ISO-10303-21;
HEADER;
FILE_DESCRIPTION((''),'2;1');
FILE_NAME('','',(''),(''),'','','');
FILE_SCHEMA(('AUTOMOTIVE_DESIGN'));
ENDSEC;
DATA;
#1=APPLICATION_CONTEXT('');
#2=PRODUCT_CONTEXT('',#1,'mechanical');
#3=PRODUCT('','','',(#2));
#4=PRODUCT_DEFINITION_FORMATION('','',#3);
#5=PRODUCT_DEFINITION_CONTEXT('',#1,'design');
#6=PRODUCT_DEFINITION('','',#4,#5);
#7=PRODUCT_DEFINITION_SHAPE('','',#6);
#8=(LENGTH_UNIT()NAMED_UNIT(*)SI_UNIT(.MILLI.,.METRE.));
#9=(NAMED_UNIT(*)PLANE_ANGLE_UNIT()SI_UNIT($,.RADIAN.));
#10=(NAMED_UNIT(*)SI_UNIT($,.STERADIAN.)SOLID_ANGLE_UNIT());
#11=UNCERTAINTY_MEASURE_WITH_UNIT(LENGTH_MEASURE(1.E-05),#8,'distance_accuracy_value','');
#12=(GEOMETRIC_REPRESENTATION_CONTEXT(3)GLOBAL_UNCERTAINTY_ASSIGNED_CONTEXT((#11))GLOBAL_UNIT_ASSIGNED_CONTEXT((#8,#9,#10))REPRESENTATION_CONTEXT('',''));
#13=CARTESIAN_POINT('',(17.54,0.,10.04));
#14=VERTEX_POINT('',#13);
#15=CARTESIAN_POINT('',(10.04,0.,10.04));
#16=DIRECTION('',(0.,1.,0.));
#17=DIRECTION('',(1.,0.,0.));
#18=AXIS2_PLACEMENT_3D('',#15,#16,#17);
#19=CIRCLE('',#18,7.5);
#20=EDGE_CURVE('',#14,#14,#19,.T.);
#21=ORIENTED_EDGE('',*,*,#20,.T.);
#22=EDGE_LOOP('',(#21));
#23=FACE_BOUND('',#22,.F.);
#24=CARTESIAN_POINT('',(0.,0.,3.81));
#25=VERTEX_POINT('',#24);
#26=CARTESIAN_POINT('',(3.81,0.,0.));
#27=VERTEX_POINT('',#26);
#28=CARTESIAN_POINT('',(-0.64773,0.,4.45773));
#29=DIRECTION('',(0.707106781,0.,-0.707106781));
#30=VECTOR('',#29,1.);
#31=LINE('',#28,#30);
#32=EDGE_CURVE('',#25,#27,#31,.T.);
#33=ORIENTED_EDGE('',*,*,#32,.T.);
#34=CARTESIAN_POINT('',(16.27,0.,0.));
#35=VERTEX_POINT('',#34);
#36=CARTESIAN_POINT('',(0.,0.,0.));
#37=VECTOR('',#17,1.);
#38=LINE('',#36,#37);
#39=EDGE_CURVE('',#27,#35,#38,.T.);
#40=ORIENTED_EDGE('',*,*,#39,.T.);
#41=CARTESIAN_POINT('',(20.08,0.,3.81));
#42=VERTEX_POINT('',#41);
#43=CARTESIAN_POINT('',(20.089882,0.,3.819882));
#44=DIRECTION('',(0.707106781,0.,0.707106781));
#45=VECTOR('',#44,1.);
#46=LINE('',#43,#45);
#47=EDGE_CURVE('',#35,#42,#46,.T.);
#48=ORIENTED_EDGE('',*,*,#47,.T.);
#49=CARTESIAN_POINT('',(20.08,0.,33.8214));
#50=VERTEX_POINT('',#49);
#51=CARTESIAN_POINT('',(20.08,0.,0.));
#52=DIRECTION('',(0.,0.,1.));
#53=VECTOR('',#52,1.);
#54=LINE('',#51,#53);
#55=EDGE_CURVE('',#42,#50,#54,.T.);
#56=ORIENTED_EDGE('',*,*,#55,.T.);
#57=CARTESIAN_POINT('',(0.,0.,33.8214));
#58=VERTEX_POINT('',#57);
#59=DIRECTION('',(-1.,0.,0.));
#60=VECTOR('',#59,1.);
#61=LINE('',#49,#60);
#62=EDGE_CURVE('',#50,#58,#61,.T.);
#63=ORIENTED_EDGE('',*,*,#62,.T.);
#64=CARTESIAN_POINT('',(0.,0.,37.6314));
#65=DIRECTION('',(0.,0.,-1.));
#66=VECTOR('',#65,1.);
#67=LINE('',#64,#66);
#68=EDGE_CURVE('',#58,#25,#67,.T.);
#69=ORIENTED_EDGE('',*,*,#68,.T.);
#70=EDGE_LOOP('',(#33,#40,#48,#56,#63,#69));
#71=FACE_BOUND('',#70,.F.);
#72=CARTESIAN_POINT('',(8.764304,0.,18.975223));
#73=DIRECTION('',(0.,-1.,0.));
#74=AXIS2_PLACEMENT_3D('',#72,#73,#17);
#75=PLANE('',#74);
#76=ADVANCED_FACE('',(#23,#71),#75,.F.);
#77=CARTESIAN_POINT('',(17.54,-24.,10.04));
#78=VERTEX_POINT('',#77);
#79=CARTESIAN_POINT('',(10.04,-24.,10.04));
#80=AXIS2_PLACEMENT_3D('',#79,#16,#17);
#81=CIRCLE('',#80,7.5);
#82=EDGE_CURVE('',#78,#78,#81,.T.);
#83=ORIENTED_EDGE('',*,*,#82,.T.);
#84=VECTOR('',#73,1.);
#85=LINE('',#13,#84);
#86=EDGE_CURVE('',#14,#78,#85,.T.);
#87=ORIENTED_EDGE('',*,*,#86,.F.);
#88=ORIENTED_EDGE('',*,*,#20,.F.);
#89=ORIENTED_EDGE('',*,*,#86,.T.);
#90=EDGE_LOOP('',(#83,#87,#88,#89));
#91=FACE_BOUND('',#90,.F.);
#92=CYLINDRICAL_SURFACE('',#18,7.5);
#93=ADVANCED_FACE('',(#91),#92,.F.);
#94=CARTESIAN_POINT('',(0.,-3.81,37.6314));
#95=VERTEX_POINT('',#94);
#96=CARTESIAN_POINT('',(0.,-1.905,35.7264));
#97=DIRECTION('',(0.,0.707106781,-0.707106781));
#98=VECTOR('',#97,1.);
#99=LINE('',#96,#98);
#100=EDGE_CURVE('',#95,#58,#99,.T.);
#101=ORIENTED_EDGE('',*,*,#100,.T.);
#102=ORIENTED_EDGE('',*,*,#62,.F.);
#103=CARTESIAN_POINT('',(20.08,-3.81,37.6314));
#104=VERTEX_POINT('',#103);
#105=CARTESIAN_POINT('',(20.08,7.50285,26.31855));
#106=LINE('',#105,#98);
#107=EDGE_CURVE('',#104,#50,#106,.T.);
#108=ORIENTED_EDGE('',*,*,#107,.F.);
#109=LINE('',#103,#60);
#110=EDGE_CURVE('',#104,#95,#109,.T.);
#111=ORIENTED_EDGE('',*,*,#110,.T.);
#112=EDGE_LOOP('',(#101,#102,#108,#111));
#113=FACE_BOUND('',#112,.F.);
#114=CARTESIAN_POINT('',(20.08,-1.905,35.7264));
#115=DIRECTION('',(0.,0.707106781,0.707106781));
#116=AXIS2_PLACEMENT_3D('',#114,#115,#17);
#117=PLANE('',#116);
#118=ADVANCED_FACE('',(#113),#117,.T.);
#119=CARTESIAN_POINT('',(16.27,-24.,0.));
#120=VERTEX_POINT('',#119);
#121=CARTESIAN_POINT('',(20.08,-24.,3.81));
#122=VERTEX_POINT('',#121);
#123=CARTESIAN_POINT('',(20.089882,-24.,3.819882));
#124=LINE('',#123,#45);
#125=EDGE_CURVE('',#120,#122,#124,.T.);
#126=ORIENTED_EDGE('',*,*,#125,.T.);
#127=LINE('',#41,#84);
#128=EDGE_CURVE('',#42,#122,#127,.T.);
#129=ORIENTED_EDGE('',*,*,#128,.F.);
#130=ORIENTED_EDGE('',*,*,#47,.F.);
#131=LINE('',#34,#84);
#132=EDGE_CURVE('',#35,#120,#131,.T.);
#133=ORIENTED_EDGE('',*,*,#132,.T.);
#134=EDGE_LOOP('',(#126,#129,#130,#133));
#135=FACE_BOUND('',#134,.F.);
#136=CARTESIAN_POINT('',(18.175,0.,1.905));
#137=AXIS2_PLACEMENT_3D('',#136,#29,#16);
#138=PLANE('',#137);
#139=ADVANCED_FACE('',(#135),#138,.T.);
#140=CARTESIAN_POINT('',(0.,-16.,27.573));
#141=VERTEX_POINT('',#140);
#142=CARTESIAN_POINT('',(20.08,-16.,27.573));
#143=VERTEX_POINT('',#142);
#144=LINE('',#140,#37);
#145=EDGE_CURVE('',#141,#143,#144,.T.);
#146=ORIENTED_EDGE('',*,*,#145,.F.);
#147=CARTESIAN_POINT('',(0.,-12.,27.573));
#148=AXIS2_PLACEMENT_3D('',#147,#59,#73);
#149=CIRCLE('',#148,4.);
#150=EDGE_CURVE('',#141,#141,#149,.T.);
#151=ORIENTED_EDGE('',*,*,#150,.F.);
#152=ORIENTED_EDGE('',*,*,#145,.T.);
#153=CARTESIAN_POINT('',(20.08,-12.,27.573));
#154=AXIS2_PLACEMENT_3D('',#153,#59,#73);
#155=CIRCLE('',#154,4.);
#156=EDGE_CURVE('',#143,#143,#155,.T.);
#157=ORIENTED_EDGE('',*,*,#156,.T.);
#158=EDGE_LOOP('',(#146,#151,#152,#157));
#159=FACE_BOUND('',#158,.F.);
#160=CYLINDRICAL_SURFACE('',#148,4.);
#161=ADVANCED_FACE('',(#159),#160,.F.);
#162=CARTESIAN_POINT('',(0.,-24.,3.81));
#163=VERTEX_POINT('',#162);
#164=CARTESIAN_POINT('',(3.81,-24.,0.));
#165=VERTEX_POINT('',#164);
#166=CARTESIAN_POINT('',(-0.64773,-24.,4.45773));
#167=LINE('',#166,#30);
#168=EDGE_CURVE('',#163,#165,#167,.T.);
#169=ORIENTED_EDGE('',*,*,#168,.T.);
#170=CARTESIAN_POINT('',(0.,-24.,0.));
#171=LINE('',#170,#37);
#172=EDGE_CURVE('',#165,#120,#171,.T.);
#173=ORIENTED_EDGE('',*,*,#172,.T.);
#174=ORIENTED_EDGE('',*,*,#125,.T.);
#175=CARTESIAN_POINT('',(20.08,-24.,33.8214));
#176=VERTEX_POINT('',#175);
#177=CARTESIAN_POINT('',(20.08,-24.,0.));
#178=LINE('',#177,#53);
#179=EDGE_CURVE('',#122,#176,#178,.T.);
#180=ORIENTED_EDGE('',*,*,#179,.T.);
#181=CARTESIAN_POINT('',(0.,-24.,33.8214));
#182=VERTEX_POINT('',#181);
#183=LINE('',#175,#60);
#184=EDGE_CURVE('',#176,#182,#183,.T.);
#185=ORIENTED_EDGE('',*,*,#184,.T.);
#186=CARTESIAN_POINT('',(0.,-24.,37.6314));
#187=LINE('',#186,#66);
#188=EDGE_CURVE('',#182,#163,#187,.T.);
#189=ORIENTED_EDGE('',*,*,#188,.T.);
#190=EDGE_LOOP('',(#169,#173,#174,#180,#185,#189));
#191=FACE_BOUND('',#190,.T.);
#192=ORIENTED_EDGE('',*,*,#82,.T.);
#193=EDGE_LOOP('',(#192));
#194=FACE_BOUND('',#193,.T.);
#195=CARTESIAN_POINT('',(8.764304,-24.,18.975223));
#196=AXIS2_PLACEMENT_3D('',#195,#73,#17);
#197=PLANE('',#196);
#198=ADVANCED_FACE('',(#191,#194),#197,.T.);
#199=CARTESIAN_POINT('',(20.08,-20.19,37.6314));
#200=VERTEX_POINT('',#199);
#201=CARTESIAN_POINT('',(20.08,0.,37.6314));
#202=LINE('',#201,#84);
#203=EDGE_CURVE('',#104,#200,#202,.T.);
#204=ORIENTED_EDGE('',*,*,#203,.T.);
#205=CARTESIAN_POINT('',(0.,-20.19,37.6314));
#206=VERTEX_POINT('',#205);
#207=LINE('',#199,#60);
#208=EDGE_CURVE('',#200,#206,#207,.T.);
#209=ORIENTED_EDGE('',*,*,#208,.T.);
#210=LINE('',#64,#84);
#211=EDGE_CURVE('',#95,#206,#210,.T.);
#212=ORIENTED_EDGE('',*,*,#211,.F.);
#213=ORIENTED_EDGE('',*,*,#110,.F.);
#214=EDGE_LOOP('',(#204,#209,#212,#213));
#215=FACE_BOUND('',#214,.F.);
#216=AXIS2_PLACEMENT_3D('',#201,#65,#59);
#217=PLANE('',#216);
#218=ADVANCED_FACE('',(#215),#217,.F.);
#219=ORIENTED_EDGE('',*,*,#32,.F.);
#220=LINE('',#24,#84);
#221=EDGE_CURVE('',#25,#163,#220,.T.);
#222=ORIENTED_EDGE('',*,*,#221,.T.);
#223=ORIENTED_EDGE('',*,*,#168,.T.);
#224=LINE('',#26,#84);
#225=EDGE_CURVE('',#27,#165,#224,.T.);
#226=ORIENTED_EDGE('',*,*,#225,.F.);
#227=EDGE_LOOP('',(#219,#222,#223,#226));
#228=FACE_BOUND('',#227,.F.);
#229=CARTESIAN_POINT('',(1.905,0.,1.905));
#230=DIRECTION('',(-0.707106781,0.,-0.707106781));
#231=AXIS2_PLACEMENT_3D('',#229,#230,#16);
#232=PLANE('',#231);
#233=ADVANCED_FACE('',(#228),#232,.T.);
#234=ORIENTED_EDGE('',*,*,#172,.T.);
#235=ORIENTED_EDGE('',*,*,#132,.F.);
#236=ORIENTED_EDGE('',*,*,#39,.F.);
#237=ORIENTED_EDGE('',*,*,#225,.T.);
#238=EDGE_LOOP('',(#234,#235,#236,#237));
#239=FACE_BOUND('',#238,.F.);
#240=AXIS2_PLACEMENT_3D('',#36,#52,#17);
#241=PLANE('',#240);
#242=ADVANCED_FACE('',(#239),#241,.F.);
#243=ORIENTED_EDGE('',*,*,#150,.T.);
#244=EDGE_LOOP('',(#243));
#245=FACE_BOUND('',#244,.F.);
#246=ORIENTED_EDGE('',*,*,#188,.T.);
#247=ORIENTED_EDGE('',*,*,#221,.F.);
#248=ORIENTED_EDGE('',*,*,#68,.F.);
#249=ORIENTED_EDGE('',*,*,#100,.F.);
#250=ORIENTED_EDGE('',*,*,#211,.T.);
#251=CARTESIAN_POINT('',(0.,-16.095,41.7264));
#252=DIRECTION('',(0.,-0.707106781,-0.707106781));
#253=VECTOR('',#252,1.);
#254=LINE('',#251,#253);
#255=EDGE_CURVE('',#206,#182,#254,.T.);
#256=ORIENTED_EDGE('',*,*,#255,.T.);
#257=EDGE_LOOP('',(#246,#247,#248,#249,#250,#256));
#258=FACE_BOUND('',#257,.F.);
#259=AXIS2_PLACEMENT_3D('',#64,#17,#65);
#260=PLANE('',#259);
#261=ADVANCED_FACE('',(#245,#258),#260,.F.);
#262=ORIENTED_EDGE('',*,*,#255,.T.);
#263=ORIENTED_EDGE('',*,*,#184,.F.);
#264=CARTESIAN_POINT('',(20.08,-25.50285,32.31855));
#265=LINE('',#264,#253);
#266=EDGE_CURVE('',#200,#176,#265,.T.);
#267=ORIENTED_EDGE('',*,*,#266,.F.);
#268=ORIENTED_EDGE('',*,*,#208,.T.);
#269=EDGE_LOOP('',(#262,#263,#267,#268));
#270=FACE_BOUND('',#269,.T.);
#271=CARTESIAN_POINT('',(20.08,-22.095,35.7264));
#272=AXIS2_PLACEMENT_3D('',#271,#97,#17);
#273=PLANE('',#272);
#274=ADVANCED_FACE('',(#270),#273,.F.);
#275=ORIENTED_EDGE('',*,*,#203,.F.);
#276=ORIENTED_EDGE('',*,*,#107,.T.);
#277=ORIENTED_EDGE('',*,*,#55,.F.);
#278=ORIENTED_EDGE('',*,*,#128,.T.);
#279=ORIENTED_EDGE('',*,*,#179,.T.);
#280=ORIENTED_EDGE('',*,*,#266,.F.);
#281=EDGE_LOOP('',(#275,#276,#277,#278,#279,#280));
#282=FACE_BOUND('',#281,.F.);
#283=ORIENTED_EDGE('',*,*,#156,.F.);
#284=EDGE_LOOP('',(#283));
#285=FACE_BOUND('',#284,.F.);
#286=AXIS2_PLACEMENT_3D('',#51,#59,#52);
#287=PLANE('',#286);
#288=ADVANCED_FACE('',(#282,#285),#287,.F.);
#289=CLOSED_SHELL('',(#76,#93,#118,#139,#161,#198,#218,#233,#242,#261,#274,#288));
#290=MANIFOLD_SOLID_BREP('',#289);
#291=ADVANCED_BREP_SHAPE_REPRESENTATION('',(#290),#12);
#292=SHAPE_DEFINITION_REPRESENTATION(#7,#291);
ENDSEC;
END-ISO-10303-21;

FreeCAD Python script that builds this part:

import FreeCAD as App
import Part
import Sketcher

V = App.Vector


def edges_at(feature, points):
    """Names of the edges that pass closest to the given points."""
    edges = feature.Shape.Edges
    near = lambda p: min(range(len(edges)), key=lambda i: edges[i].distToShape(Part.Vertex(*p))[0])
    return sorted({f"Edge{near(p) + 1}" for p in points})

doc = App.newDocument("Part")
body = doc.addObject("PartDesign::Body", "Body")

# Sketch on XZ plane
sketch1 = doc.addObject("Sketcher::SketchObject", "Sketch")
body.addObject(sketch1)
sketch1.AttachmentSupport = (doc.XZ_Plane, [""])
sketch1.MapMode = "FlatFace"
sketch1.addGeometry([
    Part.LineSegment(V(0, 38, 0), V(0, 0, 0)),  # 0
    Part.LineSegment(V(0, 0, 0), V(20, 0, 0)),  # 1
    Part.LineSegment(V(20, 0, 0), V(20, 38, 0)),  # 2
    Part.LineSegment(V(20, 38, 0), V(0, 38, 0)),  # 3
    Part.Circle(V(10, 10, 0), V(0, 0, 1), 8),  # 4
], False)
sketch1.addConstraint([
    Sketcher.Constraint("Coincident", 0, 2, 1, 1),
    Sketcher.Constraint("Coincident", 1, 2, 2, 1),
    Sketcher.Constraint("Coincident", 2, 2, 3, 1),
    Sketcher.Constraint("Coincident", 3, 2, 0, 1),
    Sketcher.Constraint("Vertical", 0),
    Sketcher.Constraint("Horizontal", 1),
    Sketcher.Constraint("Vertical", 2),
    Sketcher.Constraint("Horizontal", 3),
    Sketcher.Constraint("Coincident", 0, 2, -1, 1),
    Sketcher.Constraint("Diameter", 4, 15.0),
    Sketcher.Constraint("DistanceX", 1, 1, 1, 2, 20.08),
    Sketcher.Constraint("DistanceX", -1, 1, 4, 3, 10.04),
    Sketcher.Constraint("DistanceY", -1, 1, 4, 3, 10.04),
    Sketcher.Constraint("DistanceY", 0, 2, 0, 1, 37.6314),
])
pad1 = doc.addObject("PartDesign::Pad", "Pad")
body.addObject(pad1)
pad1.Profile = sketch1
pad1.Length = 24

# Sketch on YZ plane
sketch2 = doc.addObject("Sketcher::SketchObject", "Sketch001")
body.addObject(sketch2)
sketch2.AttachmentSupport = (doc.YZ_Plane, [""])
sketch2.MapMode = "FlatFace"
sketch2.addGeometry(Part.Circle(V(-12, 27.6, 0), V(0, 0, 1), 4), False)
sketch2.addConstraint([
    Sketcher.Constraint("Diameter", 0, 8.0),
    Sketcher.Constraint("DistanceX", 0, 3, -1, 1, 12.0),
    Sketcher.Constraint("DistanceY", -1, 1, 0, 3, 27.573),
])
pocket1 = doc.addObject("PartDesign::Pocket", "Pocket")
body.addObject(pocket1)
pocket1.Profile = sketch2
pocket1.Length = 25.4
pocket1.Reversed = True
doc.recompute()

chamfer = doc.addObject("PartDesign::Chamfer", "Chamfer")
body.addObject(chamfer)
chamfer.Base = (pocket1, edges_at(pocket1, [
    (10.04, 0, 37.631),
    (0, -12, 0),
    (10.04, -24, 37.631),
    (20.08, -12, 0),
]))
chamfer.Size = 3.81

doc.recompute()
